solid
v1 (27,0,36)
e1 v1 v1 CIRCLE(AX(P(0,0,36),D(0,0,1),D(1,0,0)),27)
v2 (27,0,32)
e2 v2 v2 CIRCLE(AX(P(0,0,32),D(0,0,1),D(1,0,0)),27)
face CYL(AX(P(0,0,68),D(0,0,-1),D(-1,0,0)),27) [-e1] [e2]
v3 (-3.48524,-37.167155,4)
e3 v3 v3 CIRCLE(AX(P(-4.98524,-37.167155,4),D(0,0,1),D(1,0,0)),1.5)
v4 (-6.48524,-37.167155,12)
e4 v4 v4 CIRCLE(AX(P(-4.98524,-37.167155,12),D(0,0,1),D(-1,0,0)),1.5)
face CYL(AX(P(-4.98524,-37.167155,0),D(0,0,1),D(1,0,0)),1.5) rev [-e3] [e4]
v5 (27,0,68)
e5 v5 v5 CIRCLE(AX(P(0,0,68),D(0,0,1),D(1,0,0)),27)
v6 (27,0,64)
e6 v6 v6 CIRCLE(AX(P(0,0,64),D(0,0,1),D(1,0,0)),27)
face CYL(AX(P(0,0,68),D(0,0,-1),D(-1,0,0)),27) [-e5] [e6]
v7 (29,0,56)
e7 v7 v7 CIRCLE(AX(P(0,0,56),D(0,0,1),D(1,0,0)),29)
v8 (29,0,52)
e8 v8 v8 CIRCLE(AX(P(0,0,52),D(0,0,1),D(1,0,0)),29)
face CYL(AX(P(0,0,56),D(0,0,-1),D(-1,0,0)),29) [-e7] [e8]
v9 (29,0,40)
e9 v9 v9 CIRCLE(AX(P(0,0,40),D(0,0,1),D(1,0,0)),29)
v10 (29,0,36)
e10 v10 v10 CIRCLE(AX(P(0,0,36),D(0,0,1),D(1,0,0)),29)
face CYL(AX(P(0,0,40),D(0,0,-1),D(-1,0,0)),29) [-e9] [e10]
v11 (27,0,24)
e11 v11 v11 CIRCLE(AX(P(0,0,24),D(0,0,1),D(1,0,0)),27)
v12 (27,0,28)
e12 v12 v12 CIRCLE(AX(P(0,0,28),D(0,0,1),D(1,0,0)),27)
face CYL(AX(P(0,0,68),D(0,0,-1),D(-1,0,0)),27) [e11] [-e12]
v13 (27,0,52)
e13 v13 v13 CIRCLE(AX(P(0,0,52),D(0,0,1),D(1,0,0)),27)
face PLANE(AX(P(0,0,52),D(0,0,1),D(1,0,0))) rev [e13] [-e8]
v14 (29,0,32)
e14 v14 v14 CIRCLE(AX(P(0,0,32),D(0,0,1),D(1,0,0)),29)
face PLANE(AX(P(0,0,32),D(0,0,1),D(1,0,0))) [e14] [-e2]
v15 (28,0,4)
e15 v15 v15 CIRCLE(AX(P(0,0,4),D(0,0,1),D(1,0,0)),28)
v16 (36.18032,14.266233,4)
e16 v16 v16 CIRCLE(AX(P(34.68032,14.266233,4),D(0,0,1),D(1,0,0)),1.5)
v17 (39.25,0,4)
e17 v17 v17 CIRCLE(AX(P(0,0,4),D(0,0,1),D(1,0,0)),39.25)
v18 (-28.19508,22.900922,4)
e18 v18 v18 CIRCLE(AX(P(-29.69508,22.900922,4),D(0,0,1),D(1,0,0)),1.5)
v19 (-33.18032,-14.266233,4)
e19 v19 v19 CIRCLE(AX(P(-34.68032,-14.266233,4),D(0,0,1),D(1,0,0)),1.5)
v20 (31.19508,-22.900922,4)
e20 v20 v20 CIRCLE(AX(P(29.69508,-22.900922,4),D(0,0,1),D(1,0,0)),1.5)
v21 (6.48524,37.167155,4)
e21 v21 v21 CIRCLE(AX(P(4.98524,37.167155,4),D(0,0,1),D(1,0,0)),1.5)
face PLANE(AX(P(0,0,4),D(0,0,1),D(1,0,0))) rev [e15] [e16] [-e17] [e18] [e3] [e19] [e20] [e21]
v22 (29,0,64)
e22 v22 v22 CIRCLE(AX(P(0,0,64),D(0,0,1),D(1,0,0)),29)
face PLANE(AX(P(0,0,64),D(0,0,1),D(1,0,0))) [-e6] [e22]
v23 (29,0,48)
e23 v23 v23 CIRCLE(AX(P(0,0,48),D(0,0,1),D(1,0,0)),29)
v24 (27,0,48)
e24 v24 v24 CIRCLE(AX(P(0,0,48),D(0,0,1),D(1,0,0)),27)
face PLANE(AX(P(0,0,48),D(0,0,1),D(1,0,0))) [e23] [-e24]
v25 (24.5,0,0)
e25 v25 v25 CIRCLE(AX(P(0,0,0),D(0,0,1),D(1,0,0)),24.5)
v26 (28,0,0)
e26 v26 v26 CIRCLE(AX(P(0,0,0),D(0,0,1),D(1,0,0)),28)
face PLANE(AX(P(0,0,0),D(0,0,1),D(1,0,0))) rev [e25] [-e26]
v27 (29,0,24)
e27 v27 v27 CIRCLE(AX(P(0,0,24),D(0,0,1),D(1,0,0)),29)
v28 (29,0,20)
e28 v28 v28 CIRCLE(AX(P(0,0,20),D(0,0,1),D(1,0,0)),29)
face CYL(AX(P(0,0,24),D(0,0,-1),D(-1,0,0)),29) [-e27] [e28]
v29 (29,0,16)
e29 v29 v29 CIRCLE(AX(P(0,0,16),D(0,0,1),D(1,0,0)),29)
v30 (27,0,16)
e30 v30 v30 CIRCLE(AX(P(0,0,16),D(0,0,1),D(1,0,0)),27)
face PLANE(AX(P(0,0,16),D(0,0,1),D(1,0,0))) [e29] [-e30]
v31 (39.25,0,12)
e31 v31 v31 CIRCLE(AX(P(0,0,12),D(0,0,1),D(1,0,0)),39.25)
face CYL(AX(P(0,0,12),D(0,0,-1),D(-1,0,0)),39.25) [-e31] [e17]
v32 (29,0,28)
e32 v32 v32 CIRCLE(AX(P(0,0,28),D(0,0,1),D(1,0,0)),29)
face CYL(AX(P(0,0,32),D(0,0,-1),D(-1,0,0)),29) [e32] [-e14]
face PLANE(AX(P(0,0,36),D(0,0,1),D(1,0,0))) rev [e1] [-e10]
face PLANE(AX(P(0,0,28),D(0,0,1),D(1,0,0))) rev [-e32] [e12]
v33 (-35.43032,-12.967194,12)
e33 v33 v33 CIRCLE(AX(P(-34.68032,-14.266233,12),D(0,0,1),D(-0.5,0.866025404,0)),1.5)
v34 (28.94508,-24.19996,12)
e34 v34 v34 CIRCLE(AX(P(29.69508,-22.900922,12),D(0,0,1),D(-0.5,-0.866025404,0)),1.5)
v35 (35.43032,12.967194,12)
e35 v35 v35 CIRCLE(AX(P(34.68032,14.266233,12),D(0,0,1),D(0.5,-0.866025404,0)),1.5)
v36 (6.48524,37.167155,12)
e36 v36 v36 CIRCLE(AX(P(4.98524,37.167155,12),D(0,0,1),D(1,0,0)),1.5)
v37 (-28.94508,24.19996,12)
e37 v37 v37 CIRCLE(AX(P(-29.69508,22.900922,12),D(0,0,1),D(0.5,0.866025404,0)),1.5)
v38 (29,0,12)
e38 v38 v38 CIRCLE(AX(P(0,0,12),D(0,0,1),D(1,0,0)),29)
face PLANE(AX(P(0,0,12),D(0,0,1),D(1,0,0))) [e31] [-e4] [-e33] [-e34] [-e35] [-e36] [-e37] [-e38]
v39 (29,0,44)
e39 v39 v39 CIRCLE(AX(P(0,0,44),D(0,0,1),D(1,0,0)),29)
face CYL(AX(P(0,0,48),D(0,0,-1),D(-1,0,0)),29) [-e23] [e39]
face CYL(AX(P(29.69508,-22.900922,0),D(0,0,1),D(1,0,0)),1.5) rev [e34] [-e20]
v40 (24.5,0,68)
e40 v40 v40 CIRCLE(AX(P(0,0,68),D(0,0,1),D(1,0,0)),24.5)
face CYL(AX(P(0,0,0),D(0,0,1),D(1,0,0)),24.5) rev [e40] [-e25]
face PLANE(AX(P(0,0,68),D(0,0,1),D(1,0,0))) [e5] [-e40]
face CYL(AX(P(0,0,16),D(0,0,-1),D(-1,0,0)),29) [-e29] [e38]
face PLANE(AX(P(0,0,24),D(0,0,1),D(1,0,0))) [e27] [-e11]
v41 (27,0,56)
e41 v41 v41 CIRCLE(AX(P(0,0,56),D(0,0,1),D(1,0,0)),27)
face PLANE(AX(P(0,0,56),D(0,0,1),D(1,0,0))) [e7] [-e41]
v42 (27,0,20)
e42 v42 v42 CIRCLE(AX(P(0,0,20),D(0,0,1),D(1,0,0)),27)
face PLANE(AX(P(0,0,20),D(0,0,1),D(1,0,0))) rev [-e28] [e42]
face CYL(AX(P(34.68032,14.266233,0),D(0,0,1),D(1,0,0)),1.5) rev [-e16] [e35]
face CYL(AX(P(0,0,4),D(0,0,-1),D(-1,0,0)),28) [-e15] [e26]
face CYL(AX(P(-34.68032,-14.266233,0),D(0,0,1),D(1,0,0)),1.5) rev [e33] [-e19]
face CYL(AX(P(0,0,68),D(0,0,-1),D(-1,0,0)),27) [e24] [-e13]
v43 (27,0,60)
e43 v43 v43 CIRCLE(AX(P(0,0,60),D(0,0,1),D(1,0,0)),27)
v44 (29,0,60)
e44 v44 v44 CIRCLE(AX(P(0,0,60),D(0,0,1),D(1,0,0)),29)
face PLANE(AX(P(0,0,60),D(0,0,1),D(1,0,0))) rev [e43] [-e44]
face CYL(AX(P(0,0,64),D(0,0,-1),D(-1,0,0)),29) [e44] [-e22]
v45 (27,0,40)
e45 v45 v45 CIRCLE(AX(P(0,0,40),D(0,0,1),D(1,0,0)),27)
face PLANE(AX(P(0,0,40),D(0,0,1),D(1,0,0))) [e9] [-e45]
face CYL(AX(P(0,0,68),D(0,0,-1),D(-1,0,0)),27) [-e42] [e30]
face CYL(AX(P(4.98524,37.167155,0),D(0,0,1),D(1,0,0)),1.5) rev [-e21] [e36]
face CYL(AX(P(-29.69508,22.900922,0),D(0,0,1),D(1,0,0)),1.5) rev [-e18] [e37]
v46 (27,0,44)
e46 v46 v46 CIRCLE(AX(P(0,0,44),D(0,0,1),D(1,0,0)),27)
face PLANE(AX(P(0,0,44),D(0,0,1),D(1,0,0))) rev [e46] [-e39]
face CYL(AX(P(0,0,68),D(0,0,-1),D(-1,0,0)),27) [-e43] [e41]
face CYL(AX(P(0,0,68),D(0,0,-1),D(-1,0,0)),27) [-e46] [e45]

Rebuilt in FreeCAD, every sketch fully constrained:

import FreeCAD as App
import Part
import Sketcher

doc = App.newDocument("Part")
params = doc.addObject("Spreadsheet::Sheet", "Params")
for row, (alias, value) in enumerate([
    ("sketch1_diameter", "56 mm"),
    ("pad1_length", "4 mm"),
    ("sketch2_diameter", "78.5 mm"),
    ("pad2_length", "8 mm"),
    ("sketch3_diameter", "54 mm"),
    ("pad3_length", "56 mm"),
    ("sketch4_diameter", "49 mm"),
    ("sketch5_diameter", "58 mm"),
    ("pad4_length", "4 mm"),
    ("linearpattern_pitch", "8 mm"),
    ("sketch6_diameter", "3 mm"),
    ("sketch7_diameter", "49 mm"),
], start=1):
    params.set(f"A{row}", alias)
    params.set(f"B{row}", "=" + value)
    params.setAlias(f"B{row}", alias)

body = doc.addObject("PartDesign::Body", "Body")

# Sketch on XY plane
sketch1 = doc.addObject("Sketcher::SketchObject", "Sketch")
body.addObject(sketch1)
sketch1.AttachmentSupport = (doc.XY_Plane, [""])
sketch1.MapMode = "FlatFace"
sketch1.addGeometry(Part.Circle(App.Vector(0, 0, 0), App.Vector(0, 0, 1), 28), False)
sketch1.addConstraint([
    Sketcher.Constraint("Coincident", 0, 3, -1, 1),
    Sketcher.Constraint("Diameter", 0, 56.0),
])
sketch1.setExpression("Constraints[1]", "Params.sketch1_diameter")
pad1 = doc.addObject("PartDesign::Pad", "Pad")
body.addObject(pad1)
pad1.Profile = sketch1
pad1.setExpression("Length", "Params.pad1_length")

# Sketch on XY plane
sketch2 = doc.addObject("Sketcher::SketchObject", "Sketch001")
body.addObject(sketch2)
sketch2.AttachmentSupport = (doc.XY_Plane, [""])
sketch2.MapMode = "FlatFace"
sketch2.AttachmentOffset = App.Placement(App.Vector(0, 0, 4), App.Rotation())
sketch2.addGeometry(Part.Circle(App.Vector(0, 0, 0), App.Vector(0, 0, 1), 39), False)
sketch2.addConstraint([
    Sketcher.Constraint("Coincident", 0, 3, -1, 1),
    Sketcher.Constraint("Diameter", 0, 78.5),
])
sketch2.setExpression("Constraints[1]", "Params.sketch2_diameter")
pad2 = doc.addObject("PartDesign::Pad", "Pad001")
body.addObject(pad2)
pad2.Profile = sketch2
pad2.setExpression("Length", "Params.pad2_length")

# Sketch on XY plane
sketch3 = doc.addObject("Sketcher::SketchObject", "Sketch002")
body.addObject(sketch3)
sketch3.AttachmentSupport = (doc.XY_Plane, [""])
sketch3.MapMode = "FlatFace"
sketch3.AttachmentOffset = App.Placement(App.Vector(0, 0, 12), App.Rotation())
sketch3.addGeometry(Part.Circle(App.Vector(0, 0, 0), App.Vector(0, 0, 1), 27), False)
sketch3.addConstraint([
    Sketcher.Constraint("Coincident", 0, 3, -1, 1),
    Sketcher.Constraint("Diameter", 0, 54.0),
])
sketch3.setExpression("Constraints[1]", "Params.sketch3_diameter")
pad3 = doc.addObject("PartDesign::Pad", "Pad002")
body.addObject(pad3)
pad3.Profile = sketch3
pad3.setExpression("Length", "Params.pad3_length")

# Sketch on XY plane
sketch4 = doc.addObject("Sketcher::SketchObject", "Sketch003")
body.addObject(sketch4)
sketch4.AttachmentSupport = (doc.XY_Plane, [""])
sketch4.MapMode = "FlatFace"
sketch4.AttachmentOffset = App.Placement(App.Vector(0, 0, 68), App.Rotation())
sketch4.addGeometry(Part.Circle(App.Vector(0, 0, 0), App.Vector(0, 0, 1), 24), False)
sketch4.addConstraint([
    Sketcher.Constraint("Coincident", 0, 3, -1, 1),
    Sketcher.Constraint("Diameter", 0, 49.0),
])
sketch4.setExpression("Constraints[1]", "Params.sketch4_diameter")
pocket1 = doc.addObject("PartDesign::Pocket", "Pocket")
body.addObject(pocket1)
pocket1.Profile = sketch4
pocket1.Type = "ThroughAll"

# Sketch on XY plane
sketch5 = doc.addObject("Sketcher::SketchObject", "Sketch004")
body.addObject(sketch5)
sketch5.AttachmentSupport = (doc.XY_Plane, [""])
sketch5.MapMode = "FlatFace"
sketch5.AttachmentOffset = App.Placement(App.Vector(0, 0, 12), App.Rotation())
sketch5.addGeometry(Part.Circle(App.Vector(0, 0, 0), App.Vector(0, 0, 1), 29), False)
sketch5.addConstraint([
    Sketcher.Constraint("Coincident", 0, 3, -1, 1),
    Sketcher.Constraint("Diameter", 0, 58.0),
])
sketch5.setExpression("Constraints[1]", "Params.sketch5_diameter")
pad4 = doc.addObject("PartDesign::Pad", "Pad003")
body.addObject(pad4)
pad4.Profile = sketch5
pad4.setExpression("Length", "Params.pad4_length")
doc.recompute()

linearpattern = doc.addObject("PartDesign::LinearPattern", "LinearPattern")
body.addObject(linearpattern)
linearpattern.Originals = [pad4]
linearpattern.Direction = (doc.Z_Axis, [""])
linearpattern.Mode = "offset"
linearpattern.setExpression("Offset", "Params.linearpattern_pitch")
linearpattern.Occurrences = 7
body.Tip = linearpattern

# Sketch on XY plane
sketch6 = doc.addObject("Sketcher::SketchObject", "Sketch005")
body.addObject(sketch6)
sketch6.AttachmentSupport = (doc.XY_Plane, [""])
sketch6.MapMode = "FlatFace"
sketch6.AttachmentOffset = App.Placement(App.Vector(0, 0, 12), App.Rotation())
sketch6.addGeometry(Part.Circle(App.Vector(5, 37.2, 0), App.Vector(0, 0, 1), 1.5), False)
sketch6.addConstraint([
    Sketcher.Constraint("Diameter", 0, 3.0),
    Sketcher.Constraint("DistanceX", -1, 1, 0, 3, 4.98524),
    Sketcher.Constraint("DistanceY", -1, 1, 0, 3, 37.167155),
])
sketch6.setExpression("Constraints[0]", "Params.sketch6_diameter")
pocket2 = doc.addObject("PartDesign::Pocket", "Pocket001")
body.addObject(pocket2)
pocket2.Profile = sketch6
pocket2.Type = "ThroughAll"
doc.recompute()

polarpattern = doc.addObject("PartDesign::PolarPattern", "PolarPattern")
body.addObject(polarpattern)
polarpattern.Originals = [pocket2]
polarpattern.Axis = (doc.Z_Axis, [""])
polarpattern.Angle = 360
polarpattern.Occurrences = 6
body.Tip = polarpattern

# Sketch on XY plane
sketch7 = doc.addObject("Sketcher::SketchObject", "Sketch006")
body.addObject(sketch7)
sketch7.AttachmentSupport = (doc.XY_Plane, [""])
sketch7.MapMode = "FlatFace"
sketch7.AttachmentOffset = App.Placement(App.Vector(0, 0, 64), App.Rotation())
sketch7.addGeometry(Part.Circle(App.Vector(0, 0, 0), App.Vector(0, 0, 1), 24), False)
sketch7.addConstraint([
    Sketcher.Constraint("Coincident", 0, 3, -1, 1),
    Sketcher.Constraint("Diameter", 0, 49.0),
])
sketch7.setExpression("Constraints[1]", "Params.sketch7_diameter")
pocket3 = doc.addObject("PartDesign::Pocket", "Pocket002")
body.addObject(pocket3)
pocket3.Profile = sketch7
pocket3.Type = "ThroughAll"

doc.recompute()
